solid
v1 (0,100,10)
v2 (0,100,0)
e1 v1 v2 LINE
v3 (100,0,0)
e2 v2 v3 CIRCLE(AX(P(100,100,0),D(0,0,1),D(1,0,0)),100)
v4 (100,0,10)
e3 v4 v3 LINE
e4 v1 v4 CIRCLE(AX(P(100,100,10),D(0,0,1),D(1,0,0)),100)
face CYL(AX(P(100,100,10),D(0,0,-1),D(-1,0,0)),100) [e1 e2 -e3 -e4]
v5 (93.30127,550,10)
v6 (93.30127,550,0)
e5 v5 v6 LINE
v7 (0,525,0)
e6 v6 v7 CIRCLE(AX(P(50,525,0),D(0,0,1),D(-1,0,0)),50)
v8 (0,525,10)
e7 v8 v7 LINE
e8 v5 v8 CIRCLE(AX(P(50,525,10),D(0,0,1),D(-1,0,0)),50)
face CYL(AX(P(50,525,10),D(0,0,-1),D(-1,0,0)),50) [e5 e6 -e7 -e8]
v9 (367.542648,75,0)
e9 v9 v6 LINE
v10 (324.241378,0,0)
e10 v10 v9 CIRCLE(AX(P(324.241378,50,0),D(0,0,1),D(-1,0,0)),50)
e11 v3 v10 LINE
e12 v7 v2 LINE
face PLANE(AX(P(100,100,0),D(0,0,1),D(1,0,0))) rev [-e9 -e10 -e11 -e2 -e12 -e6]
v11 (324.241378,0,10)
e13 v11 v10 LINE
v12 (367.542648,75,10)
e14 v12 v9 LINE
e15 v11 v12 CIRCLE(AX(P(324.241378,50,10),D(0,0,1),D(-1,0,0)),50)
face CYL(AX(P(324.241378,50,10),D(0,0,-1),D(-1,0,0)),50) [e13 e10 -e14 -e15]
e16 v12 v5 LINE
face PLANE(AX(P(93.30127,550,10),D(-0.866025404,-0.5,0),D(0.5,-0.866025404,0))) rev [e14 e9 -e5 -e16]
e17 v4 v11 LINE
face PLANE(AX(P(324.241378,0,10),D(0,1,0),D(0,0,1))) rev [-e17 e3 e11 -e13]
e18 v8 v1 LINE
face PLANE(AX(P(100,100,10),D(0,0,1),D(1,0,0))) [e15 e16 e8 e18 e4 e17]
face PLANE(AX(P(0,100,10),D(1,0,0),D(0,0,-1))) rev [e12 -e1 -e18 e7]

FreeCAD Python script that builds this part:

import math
import FreeCAD as App
import Part
import Sketcher
from FreeCAD import Vector
Q = App.Units.Quantity

doc = App.newDocument("Part")
body = doc.addObject("PartDesign::Body", "Body")

sketch1 = body.newObject("Sketcher::SketchObject", "Sketch")
sketch1.AttachmentSupport = (doc.getObject("XY_Plane"), [""])
sketch1.MapMode = "FlatFace"
sketch1.addGeometry([
    Part.LineSegment(Vector(0, 525, 0), Vector(0, 100, 0)),
    Part.ArcOfCircle(Part.Circle(Vector(100, 100, 0), Vector(0, 0, 1), 100), math.radians(180), math.radians(270)),
    Part.LineSegment(Vector(100, 0, 0), Vector(324, 0, 0)),
    Part.ArcOfCircle(Part.Circle(Vector(324, 50, 0), Vector(0, 0, 1), 50), math.radians(-90), math.radians(30)),
    Part.LineSegment(Vector(368, 75, 0), Vector(93, 550, 0)),
    Part.ArcOfCircle(Part.Circle(Vector(50, 525, 0), Vector(0, 0, 1), 50), math.radians(30), math.radians(180)),
], False)
sketch1.addConstraint([
    Sketcher.Constraint("Tangent", 0, 2, 1, 1),
    Sketcher.Constraint("Tangent", 1, 2, 2, 1),
    Sketcher.Constraint("Tangent", 2, 2, 3, 1),
    Sketcher.Constraint("Tangent", 3, 2, 4, 1),
    Sketcher.Constraint("Tangent", 4, 2, 5, 1),
    Sketcher.Constraint("Tangent", 5, 2, 0, 1),
    Sketcher.Constraint("Vertical", 0),
    Sketcher.Constraint("Horizontal", 2),
    Sketcher.Constraint("Equal", 3, 5),
    Sketcher.Constraint("PointOnObject", 0, 2, -2),
    Sketcher.Constraint("PointOnObject", 1, 2, -1),
    Sketcher.Constraint("Radius", 1, 100.0),
    Sketcher.Constraint("Radius", 3, 50.0),
    Sketcher.Constraint("DistanceY", 0, 2, 0, 1, 425.0),
    Sketcher.Constraint("Angle", 4, Q("120 deg")),
])
pad1 = body.newObject("PartDesign::Pad", "Pad")
pad1.Profile = sketch1
pad1.Length = 10

doc.recompute()
